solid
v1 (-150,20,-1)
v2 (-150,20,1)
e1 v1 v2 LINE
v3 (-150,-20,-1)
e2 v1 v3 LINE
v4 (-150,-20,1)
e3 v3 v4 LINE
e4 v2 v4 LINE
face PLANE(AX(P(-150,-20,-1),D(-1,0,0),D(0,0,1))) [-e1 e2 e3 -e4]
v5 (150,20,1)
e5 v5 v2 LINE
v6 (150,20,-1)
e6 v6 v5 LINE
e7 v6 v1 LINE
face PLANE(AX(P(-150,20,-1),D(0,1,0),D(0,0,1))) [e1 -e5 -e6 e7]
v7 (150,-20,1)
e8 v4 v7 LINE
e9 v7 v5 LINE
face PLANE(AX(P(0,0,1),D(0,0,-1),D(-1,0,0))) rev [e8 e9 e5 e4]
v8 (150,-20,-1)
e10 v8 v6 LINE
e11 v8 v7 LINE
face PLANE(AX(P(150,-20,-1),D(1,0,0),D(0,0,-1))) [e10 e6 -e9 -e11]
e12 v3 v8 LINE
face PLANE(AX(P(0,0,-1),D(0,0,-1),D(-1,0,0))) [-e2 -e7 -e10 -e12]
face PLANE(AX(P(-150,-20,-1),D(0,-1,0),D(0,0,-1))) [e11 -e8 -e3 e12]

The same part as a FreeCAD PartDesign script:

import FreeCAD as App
import Part
import Sketcher
from FreeCAD import Vector

doc = App.newDocument("Part")
body = doc.addObject("PartDesign::Body", "Body")

sketch1 = doc.addObject("Sketcher::SketchObject", "Sketch")
body.addObject(sketch1)
sketch1.AttachmentSupport = (doc.XY_Plane, [""])
sketch1.MapMode = "FlatFace"
sketch1.addGeometry([
    Part.LineSegment(Vector(-150, 20, 0), Vector(-150, -20, 0)),
    Part.LineSegment(Vector(-150, -20, 0), Vector(150, -20, 0)),
    Part.LineSegment(Vector(150, -20, 0), Vector(150, 20, 0)),
    Part.LineSegment(Vector(150, 20, 0), Vector(-150, 20, 0)),
], False)
sketch1.addConstraint([
    Sketcher.Constraint("Coincident", 0, 2, 1, 1),
    Sketcher.Constraint("Coincident", 1, 2, 2, 1),
    Sketcher.Constraint("Coincident", 2, 2, 3, 1),
    Sketcher.Constraint("Coincident", 3, 2, 0, 1),
    Sketcher.Constraint("Vertical", 0),
    Sketcher.Constraint("Horizontal", 1),
    Sketcher.Constraint("Vertical", 2),
    Sketcher.Constraint("Horizontal", 3),
    Sketcher.Constraint("Symmetric", 0, 2, 2, 2, -1, 1),
    Sketcher.Constraint("DistanceX", 1, 1, 1, 2, 300.0),
    Sketcher.Constraint("DistanceY", 0, 2, 0, 1, 40.0),
])
pad1 = doc.addObject("PartDesign::Pad", "Pad")
body.addObject(pad1)
pad1.Profile = sketch1
pad1.Type = "TwoLengths"
pad1.Length = 1
pad1.Length2 = 1

doc.recompute()
